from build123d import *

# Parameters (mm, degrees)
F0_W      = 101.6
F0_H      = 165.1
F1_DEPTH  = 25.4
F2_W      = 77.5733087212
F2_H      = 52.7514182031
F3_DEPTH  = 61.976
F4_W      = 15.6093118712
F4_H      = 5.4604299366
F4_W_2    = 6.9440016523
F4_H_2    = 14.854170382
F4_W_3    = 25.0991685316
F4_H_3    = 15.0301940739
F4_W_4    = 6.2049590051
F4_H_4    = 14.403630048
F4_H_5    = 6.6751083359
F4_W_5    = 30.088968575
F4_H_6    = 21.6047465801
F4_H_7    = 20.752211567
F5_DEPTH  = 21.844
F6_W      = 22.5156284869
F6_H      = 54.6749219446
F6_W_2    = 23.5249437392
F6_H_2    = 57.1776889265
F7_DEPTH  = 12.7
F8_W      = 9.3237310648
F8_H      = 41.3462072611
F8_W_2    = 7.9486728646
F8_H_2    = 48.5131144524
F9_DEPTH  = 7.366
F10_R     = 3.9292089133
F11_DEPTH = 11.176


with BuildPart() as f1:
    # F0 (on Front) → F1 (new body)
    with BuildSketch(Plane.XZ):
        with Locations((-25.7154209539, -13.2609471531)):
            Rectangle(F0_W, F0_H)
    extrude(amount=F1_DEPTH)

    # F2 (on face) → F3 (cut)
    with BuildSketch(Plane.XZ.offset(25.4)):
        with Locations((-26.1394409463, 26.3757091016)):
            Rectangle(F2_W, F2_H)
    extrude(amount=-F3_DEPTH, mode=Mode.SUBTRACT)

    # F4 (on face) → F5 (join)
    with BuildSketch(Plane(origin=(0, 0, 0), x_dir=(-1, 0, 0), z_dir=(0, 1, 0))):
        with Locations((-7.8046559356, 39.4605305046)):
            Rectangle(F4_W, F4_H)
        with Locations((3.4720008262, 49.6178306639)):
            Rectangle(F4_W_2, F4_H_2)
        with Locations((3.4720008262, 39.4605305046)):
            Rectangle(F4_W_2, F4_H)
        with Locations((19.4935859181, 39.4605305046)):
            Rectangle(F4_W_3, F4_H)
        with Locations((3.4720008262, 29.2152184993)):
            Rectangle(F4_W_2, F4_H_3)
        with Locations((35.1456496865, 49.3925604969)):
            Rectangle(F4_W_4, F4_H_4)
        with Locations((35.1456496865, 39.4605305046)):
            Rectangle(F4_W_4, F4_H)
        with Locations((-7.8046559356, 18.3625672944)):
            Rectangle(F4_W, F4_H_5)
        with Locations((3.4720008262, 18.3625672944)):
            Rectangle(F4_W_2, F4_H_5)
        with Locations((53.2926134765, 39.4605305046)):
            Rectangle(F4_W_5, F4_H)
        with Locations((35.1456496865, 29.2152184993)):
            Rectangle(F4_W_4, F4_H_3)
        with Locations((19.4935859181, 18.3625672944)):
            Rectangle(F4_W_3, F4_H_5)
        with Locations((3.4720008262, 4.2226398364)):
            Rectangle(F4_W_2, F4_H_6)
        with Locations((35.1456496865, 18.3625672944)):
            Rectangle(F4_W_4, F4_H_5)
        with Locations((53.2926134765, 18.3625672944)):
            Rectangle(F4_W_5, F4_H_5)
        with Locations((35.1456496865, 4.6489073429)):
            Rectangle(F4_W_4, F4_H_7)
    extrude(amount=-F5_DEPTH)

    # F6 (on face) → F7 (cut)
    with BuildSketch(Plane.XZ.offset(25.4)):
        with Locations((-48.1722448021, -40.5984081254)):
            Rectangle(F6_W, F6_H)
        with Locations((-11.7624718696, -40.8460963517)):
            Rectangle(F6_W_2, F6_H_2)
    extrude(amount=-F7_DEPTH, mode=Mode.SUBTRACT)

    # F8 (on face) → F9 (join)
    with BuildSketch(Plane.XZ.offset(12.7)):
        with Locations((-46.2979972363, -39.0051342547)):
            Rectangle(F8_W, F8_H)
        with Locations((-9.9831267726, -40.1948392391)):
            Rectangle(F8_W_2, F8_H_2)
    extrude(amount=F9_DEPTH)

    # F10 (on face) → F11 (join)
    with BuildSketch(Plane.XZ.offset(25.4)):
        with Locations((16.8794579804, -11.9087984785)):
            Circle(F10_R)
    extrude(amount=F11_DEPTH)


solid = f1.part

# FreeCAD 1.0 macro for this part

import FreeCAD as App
import Part
import Sketcher
Q = App.Units.Quantity

doc = App.newDocument("Part")
body = doc.addObject("PartDesign::Body", "Body")

# Sketch on XZ plane
sketch1 = body.newObject("Sketcher::SketchObject", "Sketch")
sketch1.AttachmentSupport = (doc.getObject("XZ_Plane"), [""])
sketch1.MapMode = "FlatFace"
sketch1.addGeometry([
    Part.LineSegment(App.Vector(-77, 69, 0), App.Vector(-77, -96, 0)),
    Part.LineSegment(App.Vector(-77, -96, 0), App.Vector(25, -96, 0)),
    Part.LineSegment(App.Vector(25, -96, 0), App.Vector(25, 69, 0)),
    Part.LineSegment(App.Vector(25, 69, 0), App.Vector(-77, 69, 0)),
], False)
sketch1.addConstraint([
    Sketcher.Constraint("Coincident", 0, 2, 1, 1),
    Sketcher.Constraint("Coincident", 1, 2, 2, 1),
    Sketcher.Constraint("Coincident", 2, 2, 3, 1),
    Sketcher.Constraint("Coincident", 3, 2, 0, 1),
    Sketcher.Constraint("Vertical", 0),
    Sketcher.Constraint("Horizontal", 1),
    Sketcher.Constraint("Vertical", 2),
    Sketcher.Constraint("Horizontal", 3),
    Sketcher.Constraint("DistanceX", 1, 1, 1, 2, Q("4 in")),
    Sketcher.Constraint("DistanceY", 0, 2, 0, 1, Q("6.5 in")),
    Sketcher.Constraint("DistanceX", 0, 2, -1, 1, Q("76.515421 mm")),
    Sketcher.Constraint("DistanceY", 0, 2, -1, 1, Q("95.810947 mm")),
])
pad1 = body.newObject("PartDesign::Pad", "Pad")
pad1.Profile = sketch1
pad1.Length = Q("1 in")

# Sketch on XZ plane
sketch2 = body.newObject("Sketcher::SketchObject", "Sketch001")
sketch2.AttachmentSupport = (doc.getObject("XZ_Plane"), [""])
sketch2.MapMode = "FlatFace"
sketch2.AttachmentOffset = App.Placement(App.Vector(0, 0, 1 * 25.4), App.Rotation())
sketch2.addGeometry([
    Part.LineSegment(App.Vector(-65, 53, 0), App.Vector(-65, 0, 0)),
    Part.LineSegment(App.Vector(-65, 0, 0), App.Vector(13, 0, 0)),
    Part.LineSegment(App.Vector(13, 0, 0), App.Vector(13, 53, 0)),
    Part.LineSegment(App.Vector(13, 53, 0), App.Vector(-65, 53, 0)),
], False)
sketch2.addConstraint([
    Sketcher.Constraint("Coincident", 0, 2, 1, 1),
    Sketcher.Constraint("Coincident", 1, 2, 2, 1),
    Sketcher.Constraint("Coincident", 2, 2, 3, 1),
    Sketcher.Constraint("Coincident", 3, 2, 0, 1),
    Sketcher.Constraint("Vertical", 0),
    Sketcher.Constraint("Horizontal", 1),
    Sketcher.Constraint("Vertical", 2),
    Sketcher.Constraint("Horizontal", 3),
    Sketcher.Constraint("PointOnObject", 0, 2, -1),
    Sketcher.Constraint("DistanceX", 1, 1, 1, 2, Q("77.573309 mm")),
    Sketcher.Constraint("DistanceY", 0, 2, 0, 1, Q("52.751418 mm")),
    Sketcher.Constraint("DistanceX", 0, 2, -1, 1, Q("64.926095 mm")),
])
pocket1 = body.newObject("PartDesign::Pocket", "Pocket")
pocket1.Profile = sketch2
pocket1.Length = Q("2.44 in")

# Sketch on XZ plane
sketch3 = body.newObject("Sketcher::SketchObject", "Sketch002")
sketch3.AttachmentSupport = (doc.getObject("XZ_Plane"), [""])
sketch3.MapMode = "FlatFace"
sketch3.addGeometry([
    Part.LineSegment(App.Vector(-7, 15, 0), App.Vector(-32, 15, 0)),  # 0
    Part.LineSegment(App.Vector(-32, 15, 0), App.Vector(-32, -6, 0)),  # 1
    Part.LineSegment(App.Vector(-32, -6, 0), App.Vector(-38, -6, 0)),  # 2
    Part.LineSegment(App.Vector(-38, -6, 0), App.Vector(-38, 15, 0)),  # 3
    Part.LineSegment(App.Vector(-38, 15, 0), App.Vector(-68, 15, 0)),  # 4
    Part.LineSegment(App.Vector(-68, 15, 0), App.Vector(-68, 22, 0)),  # 5
    Part.LineSegment(App.Vector(-68, 22, 0), App.Vector(-38, 22, 0)),  # 6
    Part.LineSegment(App.Vector(-38, 22, 0), App.Vector(-38, 37, 0)),  # 7
    Part.LineSegment(App.Vector(-38, 37, 0), App.Vector(-68, 37, 0)),  # 8
    Part.LineSegment(App.Vector(-68, 37, 0), App.Vector(-68, 42, 0)),  # 9
    Part.LineSegment(App.Vector(-68, 42, 0), App.Vector(-38, 42, 0)),  # 10
    Part.LineSegment(App.Vector(-38, 42, 0), App.Vector(-38, 57, 0)),  # 11
    Part.LineSegment(App.Vector(-38, 57, 0), App.Vector(-32, 57, 0)),  # 12
    Part.LineSegment(App.Vector(-32, 57, 0), App.Vector(-32, 42, 0)),  # 13
    Part.LineSegment(App.Vector(-32, 42, 0), App.Vector(-7, 42, 0)),  # 14
    Part.LineSegment(App.Vector(-7, 42, 0), App.Vector(-7, 57, 0)),  # 15
    Part.LineSegment(App.Vector(-7, 57, 0), App.Vector(0, 57, 0)),  # 16
    Part.LineSegment(App.Vector(0, 57, 0), App.Vector(0, 42, 0)),  # 17
    Part.LineSegment(App.Vector(0, 42, 0), App.Vector(16, 42, 0)),  # 18
    Part.LineSegment(App.Vector(16, 42, 0), App.Vector(16, 37, 0)),  # 19
    Part.LineSegment(App.Vector(16, 37, 0), App.Vector(0, 37, 0)),  # 20
    Part.LineSegment(App.Vector(0, 37, 0), App.Vector(0, 22, 0)),  # 21
    Part.LineSegment(App.Vector(0, 22, 0), App.Vector(16, 22, 0)),  # 22
    Part.LineSegment(App.Vector(16, 22, 0), App.Vector(16, 15, 0)),  # 23
    Part.LineSegment(App.Vector(16, 15, 0), App.Vector(0, 15, 0)),  # 24
    Part.LineSegment(App.Vector(0, 15, 0), App.Vector(0, -7, 0)),  # 25
    Part.LineSegment(App.Vector(0, -7, 0), App.Vector(-7, -7, 0)),  # 26
    Part.LineSegment(App.Vector(-7, -7, 0), App.Vector(-7, 15, 0)),  # 27
    Part.LineSegment(App.Vector(-32, 22, 0), App.Vector(-7, 22, 0)),  # 28
    Part.LineSegment(App.Vector(-7, 22, 0), App.Vector(-7, 37, 0)),  # 29
    Part.LineSegment(App.Vector(-7, 37, 0), App.Vector(-32, 37, 0)),  # 30
    Part.LineSegment(App.Vector(-32, 37, 0), App.Vector(-32, 22, 0)),  # 31
], False)
sketch3.addConstraint([
    Sketcher.Constraint("Coincident", 0, 2, 1, 1),
    Sketcher.Constraint("Coincident", 1, 2, 2, 1),
    Sketcher.Constraint("Coincident", 2, 2, 3, 1),
    Sketcher.Constraint("Coincident", 3, 2, 4, 1),
    Sketcher.Constraint("Coincident", 4, 2, 5, 1),
    Sketcher.Constraint("Coincident", 5, 2, 6, 1),
    Sketcher.Constraint("Coincident", 6, 2, 7, 1),
    Sketcher.Constraint("Coincident", 7, 2, 8, 1),
    Sketcher.Constraint("Coincident", 8, 2, 9, 1),
    Sketcher.Constraint("Coincident", 9, 2, 10, 1),
    Sketcher.Constraint("Coincident", 10, 2, 11, 1),
    Sketcher.Constraint("Coincident", 11, 2, 12, 1),
    Sketcher.Constraint("Coincident", 12, 2, 13, 1),
    Sketcher.Constraint("Coincident", 13, 2, 14, 1),
    Sketcher.Constraint("Coincident", 14, 2, 15, 1),
    Sketcher.Constraint("Coincident", 15, 2, 16, 1),
    Sketcher.Constraint("Coincident", 16, 2, 17, 1),
    Sketcher.Constraint("Coincident", 17, 2, 18, 1),
    Sketcher.Constraint("Coincident", 18, 2, 19, 1),
    Sketcher.Constraint("Coincident", 19, 2, 20, 1),
    Sketcher.Constraint("Coincident", 20, 2, 21, 1),
    Sketcher.Constraint("Coincident", 21, 2, 22, 1),
    Sketcher.Constraint("Coincident", 22, 2, 23, 1),
    Sketcher.Constraint("Coincident", 23, 2, 24, 1),
    Sketcher.Constraint("Coincident", 24, 2, 25, 1),
    Sketcher.Constraint("Coincident", 25, 2, 26, 1),
    Sketcher.Constraint("Coincident", 26, 2, 27, 1),
    Sketcher.Constraint("Coincident", 27, 2, 0, 1),
    Sketcher.Constraint("Coincident", 28, 2, 29, 1),
    Sketcher.Constraint("Coincident", 29, 2, 30, 1),
    Sketcher.Constraint("Coincident", 30, 2, 31, 1),
    Sketcher.Constraint("Coincident", 31, 2, 28, 1),
    Sketcher.Constraint("Horizontal", 0),
    Sketcher.Constraint("Vertical", 1),
    Sketcher.Constraint("Horizontal", 2),
    Sketcher.Constraint("Vertical", 3),
    Sketcher.Constraint("Horizontal", 4),
    Sketcher.Constraint("Vertical", 5),
    Sketcher.Constraint("Horizontal", 6),
    Sketcher.Constraint("Vertical", 7),
    Sketcher.Constraint("Horizontal", 8),
    Sketcher.Constraint("Vertical", 9),
    Sketcher.Constraint("Horizontal", 10),
    Sketcher.Constraint("Vertical", 11),
    Sketcher.Constraint("Horizontal", 12),
    Sketcher.Constraint("Vertical", 13),
    Sketcher.Constraint("Horizontal", 14),
    Sketcher.Constraint("Vertical", 15),
    Sketcher.Constraint("Horizontal", 16),
    Sketcher.Constraint("Vertical", 17),
    Sketcher.Constraint("Horizontal", 18),
    Sketcher.Constraint("Vertical", 19),
    Sketcher.Constraint("Horizontal", 20),
    Sketcher.Constraint("Vertical", 21),
    Sketcher.Constraint("Horizontal", 22),
    Sketcher.Constraint("Vertical", 23),
    Sketcher.Constraint("Horizontal", 24),
    Sketcher.Constraint("Vertical", 25),
    Sketcher.Constraint("Horizontal", 26),
    Sketcher.Constraint("Vertical", 27),
    Sketcher.Constraint("Horizontal", 28),
    Sketcher.Constraint("Vertical", 29),
    Sketcher.Constraint("Horizontal", 30),
    Sketcher.Constraint("Vertical", 31),
    Sketcher.Constraint("PointOnObject", 16, 2, -2),
    Sketcher.Constraint("PointOnObject", 20, 2, -2),
    Sketcher.Constraint("PointOnObject", 24, 2, -2),
    Sketcher.Constraint("Horizontal", 0, 2, 3, 2),
    Sketcher.Constraint("Horizontal", 10, 2, 13, 2),
    Sketcher.Constraint("Horizontal", 14, 2, 17, 2),
    Sketcher.Constraint("Horizontal", 8, 2, 19, 2),
    Sketcher.Constraint("Horizontal", 6, 2, 21, 2),
    Sketcher.Constraint("Horizontal", 4, 2, 23, 2),
    Sketcher.Constraint("Horizontal", 22, 2, 28, 2),
    Sketcher.Constraint("Horizontal", 20, 2, 29, 2),
    Sketcher.Constraint("Vertical", 3, 2, 6, 2),
    Sketcher.Constraint("Vertical", 5, 2, 8, 2),
    Sketcher.Constraint("Vertical", 7, 2, 10, 2),
    Sketcher.Constraint("Vertical", 1, 2, 12, 2),
    Sketcher.Constraint("Vertical", 19, 2, 22, 2),
    Sketcher.Constraint("Vertical", 15, 2, 26, 2),
    Sketcher.Constraint("Vertical", 27, 2, 28, 2),
    Sketcher.Constraint("Vertical", 13, 2, 30, 2),
    Sketcher.Constraint("DistanceX", 16, 1, 16, 2, Q("6.944002 mm")),
    Sketcher.Constraint("DistanceX", 0, 2, 0, 1, Q("25.099169 mm")),
    Sketcher.Constraint("DistanceX", 2, 2, 2, 1, Q("6.204959 mm")),
    Sketcher.Constraint("DistanceX", 4, 2, 4, 1, Q("30.088969 mm")),
    Sketcher.Constraint("DistanceX", 18, 1, 18, 2, Q("15.609312 mm")),
    Sketcher.Constraint("DistanceY", 1, 2, 1, 1, Q("20.752212 mm")),
    Sketcher.Constraint("DistanceY", 5, 1, 5, 2, Q("6.675108 mm")),
    Sketcher.Constraint("DistanceY", 9, 1, 9, 2, Q("5.46043 mm")),
    Sketcher.Constraint("DistanceY", 11, 1, 11, 2, Q("14.40363 mm")),
    Sketcher.Constraint("DistanceY", 15, 1, 15, 2, Q("14.85417 mm")),
    Sketcher.Constraint("DistanceY", 1, 2, -1, 1, Q("5.727198 mm")),
    Sketcher.Constraint("DistanceY", 7, 1, 7, 2, Q("15.030194 mm")),
    Sketcher.Constraint("DistanceY", 25, 2, 25, 1, Q("21.604747 mm")),
])
pad2 = body.newObject("PartDesign::Pad", "Pad001")
pad2.Profile = sketch3
pad2.Length = Q("0.86 in")

# Sketch on XZ plane
sketch4 = body.newObject("Sketcher::SketchObject", "Sketch003")
sketch4.AttachmentSupport = (doc.getObject("XZ_Plane"), [""])
sketch4.MapMode = "FlatFace"
sketch4.AttachmentOffset = App.Placement(App.Vector(0, 0, 1 * 25.4), App.Rotation())
sketch4.addGeometry([
    Part.LineSegment(App.Vector(-59, -13, 0), App.Vector(-59, -68, 0)),  # 0
    Part.LineSegment(App.Vector(-59, -68, 0), App.Vector(-37, -68, 0)),  # 1
    Part.LineSegment(App.Vector(-37, -68, 0), App.Vector(-37, -13, 0)),  # 2
    Part.LineSegment(App.Vector(-37, -13, 0), App.Vector(-59, -13, 0)),  # 3
    Part.LineSegment(App.Vector(-24, -12, 0), App.Vector(-24, -69, 0)),  # 4
    Part.LineSegment(App.Vector(-24, -69, 0), App.Vector(0, -69, 0)),  # 5
    Part.LineSegment(App.Vector(0, -69, 0), App.Vector(0, -12, 0)),  # 6
    Part.LineSegment(App.Vector(0, -12, 0), App.Vector(-24, -12, 0)),  # 7
], False)
sketch4.addConstraint([
    Sketcher.Constraint("Coincident", 0, 2, 1, 1),
    Sketcher.Constraint("Coincident", 1, 2, 2, 1),
    Sketcher.Constraint("Coincident", 2, 2, 3, 1),
    Sketcher.Constraint("Coincident", 3, 2, 0, 1),
    Sketcher.Constraint("Coincident", 4, 2, 5, 1),
    Sketcher.Constraint("Coincident", 5, 2, 6, 1),
    Sketcher.Constraint("Coincident", 6, 2, 7, 1),
    Sketcher.Constraint("Coincident", 7, 2, 4, 1),
    Sketcher.Constraint("Vertical", 0),
    Sketcher.Constraint("Horizontal", 1),
    Sketcher.Constraint("Vertical", 2),
    Sketcher.Constraint("Horizontal", 3),
    Sketcher.Constraint("Vertical", 4),
    Sketcher.Constraint("Horizontal", 5),
    Sketcher.Constraint("Vertical", 6),
    Sketcher.Constraint("Horizontal", 7),
    Sketcher.Constraint("PointOnObject", 5, 2, -2),
    Sketcher.Constraint("DistanceX", 1, 1, 1, 2, Q("22.515628 mm")),
    Sketcher.Constraint("DistanceY", 0, 2, 0, 1, Q("54.674922 mm")),
    Sketcher.Constraint("DistanceY", 4, 2, 4, 1, Q("57.177689 mm")),
    Sketcher.Constraint("DistanceX", 5, 1, 5, 2, Q("23.524944 mm")),
    Sketcher.Constraint("DistanceX", 0, 2, -1, 1, Q("59.430059 mm")),
    Sketcher.Constraint("DistanceY", 0, 2, -1, 1, Q("67.935869 mm")),
    Sketcher.Constraint("DistanceY", 4, 2, -1, 1, Q("69.434941 mm")),
])
pocket2 = body.newObject("PartDesign::Pocket", "Pocket001")
pocket2.Profile = sketch4
pocket2.Length = Q("0.5 in")

# Sketch on XZ plane
sketch5 = body.newObject("Sketcher::SketchObject", "Sketch004")
sketch5.AttachmentSupport = (doc.getObject("XZ_Plane"), [""])
sketch5.MapMode = "FlatFace"
sketch5.AttachmentOffset = App.Placement(App.Vector(0, 0, 0.5 * 25.4), App.Rotation())
sketch5.addGeometry([
    Part.LineSegment(App.Vector(-51, -18, 0), App.Vector(-51, -60, 0)),  # 0
    Part.LineSegment(App.Vector(-51, -60, 0), App.Vector(-42, -60, 0)),  # 1
    Part.LineSegment(App.Vector(-42, -60, 0), App.Vector(-42, -18, 0)),  # 2
    Part.LineSegment(App.Vector(-42, -18, 0), App.Vector(-51, -18, 0)),  # 3
    Part.LineSegment(App.Vector(-14, -16, 0), App.Vector(-14, -64, 0)),  # 4
    Part.LineSegment(App.Vector(-14, -64, 0), App.Vector(-6, -64, 0)),  # 5
    Part.LineSegment(App.Vector(-6, -64, 0), App.Vector(-6, -16, 0)),  # 6
    Part.LineSegment(App.Vector(-6, -16, 0), App.Vector(-14, -16, 0)),  # 7
], False)
sketch5.addConstraint([
    Sketcher.Constraint("Coincident", 0, 2, 1, 1),
    Sketcher.Constraint("Coincident", 1, 2, 2, 1),
    Sketcher.Constraint("Coincident", 2, 2, 3, 1),
    Sketcher.Constraint("Coincident", 3, 2, 0, 1),
    Sketcher.Constraint("Coincident", 4, 2, 5, 1),
    Sketcher.Constraint("Coincident", 5, 2, 6, 1),
    Sketcher.Constraint("Coincident", 6, 2, 7, 1),
    Sketcher.Constraint("Coincident", 7, 2, 4, 1),
    Sketcher.Constraint("Vertical", 0),
    Sketcher.Constraint("Horizontal", 1),
    Sketcher.Constraint("Vertical", 2),
    Sketcher.Constraint("Horizontal", 3),
    Sketcher.Constraint("Vertical", 4),
    Sketcher.Constraint("Horizontal", 5),
    Sketcher.Constraint("Vertical", 6),
    Sketcher.Constraint("Horizontal", 7),
    Sketcher.Constraint("DistanceX", 1, 1, 1, 2, Q("9.323731 mm")),
    Sketcher.Constraint("DistanceX", 0, 2, 4, 2, Q("37.0024 mm")),
    Sketcher.Constraint("DistanceX", 5, 1, 5, 2, Q("7.948673 mm")),
    Sketcher.Constraint("DistanceY", 0, 2, 0, 1, Q("41.346207 mm")),
    Sketcher.Constraint("DistanceY", 4, 2, 4, 1, Q("48.513114 mm")),
    Sketcher.Constraint("DistanceX", 1, 2, -1, 1, Q("41.636132 mm")),
    Sketcher.Constraint("DistanceY", 2, 2, -1, 1, Q("18.332031 mm")),
    Sketcher.Constraint("DistanceY", 4, 2, 1, 2, Q("4.773159 mm")),
])
pad3 = body.newObject("PartDesign::Pad", "Pad002")
pad3.Profile = sketch5
pad3.Length = Q("0.29 in")

# Sketch on XZ plane
sketch6 = body.newObject("Sketcher::SketchObject", "Sketch005")
sketch6.AttachmentSupport = (doc.getObject("XZ_Plane"), [""])
sketch6.MapMode = "FlatFace"
sketch6.AttachmentOffset = App.Placement(App.Vector(0, 0, 1 * 25.4), App.Rotation())
sketch6.addGeometry(Part.Circle(App.Vector(16.9, -11.9, 0), App.Vector(0, 0, 1), 3.9), False)
sketch6.addConstraint([
    Sketcher.Constraint("Diameter", 0, Q("7.858418 mm")),
    Sketcher.Constraint("DistanceY", 0, 3, -1, 1, Q("11.908798 mm")),
    Sketcher.Constraint("DistanceX", -1, 1, 0, 3, Q("16.879458 mm")),
])
pad4 = body.newObject("PartDesign::Pad", "Pad003")
pad4.Profile = sketch6
pad4.Length = Q("0.44 in")

doc.recompute()
